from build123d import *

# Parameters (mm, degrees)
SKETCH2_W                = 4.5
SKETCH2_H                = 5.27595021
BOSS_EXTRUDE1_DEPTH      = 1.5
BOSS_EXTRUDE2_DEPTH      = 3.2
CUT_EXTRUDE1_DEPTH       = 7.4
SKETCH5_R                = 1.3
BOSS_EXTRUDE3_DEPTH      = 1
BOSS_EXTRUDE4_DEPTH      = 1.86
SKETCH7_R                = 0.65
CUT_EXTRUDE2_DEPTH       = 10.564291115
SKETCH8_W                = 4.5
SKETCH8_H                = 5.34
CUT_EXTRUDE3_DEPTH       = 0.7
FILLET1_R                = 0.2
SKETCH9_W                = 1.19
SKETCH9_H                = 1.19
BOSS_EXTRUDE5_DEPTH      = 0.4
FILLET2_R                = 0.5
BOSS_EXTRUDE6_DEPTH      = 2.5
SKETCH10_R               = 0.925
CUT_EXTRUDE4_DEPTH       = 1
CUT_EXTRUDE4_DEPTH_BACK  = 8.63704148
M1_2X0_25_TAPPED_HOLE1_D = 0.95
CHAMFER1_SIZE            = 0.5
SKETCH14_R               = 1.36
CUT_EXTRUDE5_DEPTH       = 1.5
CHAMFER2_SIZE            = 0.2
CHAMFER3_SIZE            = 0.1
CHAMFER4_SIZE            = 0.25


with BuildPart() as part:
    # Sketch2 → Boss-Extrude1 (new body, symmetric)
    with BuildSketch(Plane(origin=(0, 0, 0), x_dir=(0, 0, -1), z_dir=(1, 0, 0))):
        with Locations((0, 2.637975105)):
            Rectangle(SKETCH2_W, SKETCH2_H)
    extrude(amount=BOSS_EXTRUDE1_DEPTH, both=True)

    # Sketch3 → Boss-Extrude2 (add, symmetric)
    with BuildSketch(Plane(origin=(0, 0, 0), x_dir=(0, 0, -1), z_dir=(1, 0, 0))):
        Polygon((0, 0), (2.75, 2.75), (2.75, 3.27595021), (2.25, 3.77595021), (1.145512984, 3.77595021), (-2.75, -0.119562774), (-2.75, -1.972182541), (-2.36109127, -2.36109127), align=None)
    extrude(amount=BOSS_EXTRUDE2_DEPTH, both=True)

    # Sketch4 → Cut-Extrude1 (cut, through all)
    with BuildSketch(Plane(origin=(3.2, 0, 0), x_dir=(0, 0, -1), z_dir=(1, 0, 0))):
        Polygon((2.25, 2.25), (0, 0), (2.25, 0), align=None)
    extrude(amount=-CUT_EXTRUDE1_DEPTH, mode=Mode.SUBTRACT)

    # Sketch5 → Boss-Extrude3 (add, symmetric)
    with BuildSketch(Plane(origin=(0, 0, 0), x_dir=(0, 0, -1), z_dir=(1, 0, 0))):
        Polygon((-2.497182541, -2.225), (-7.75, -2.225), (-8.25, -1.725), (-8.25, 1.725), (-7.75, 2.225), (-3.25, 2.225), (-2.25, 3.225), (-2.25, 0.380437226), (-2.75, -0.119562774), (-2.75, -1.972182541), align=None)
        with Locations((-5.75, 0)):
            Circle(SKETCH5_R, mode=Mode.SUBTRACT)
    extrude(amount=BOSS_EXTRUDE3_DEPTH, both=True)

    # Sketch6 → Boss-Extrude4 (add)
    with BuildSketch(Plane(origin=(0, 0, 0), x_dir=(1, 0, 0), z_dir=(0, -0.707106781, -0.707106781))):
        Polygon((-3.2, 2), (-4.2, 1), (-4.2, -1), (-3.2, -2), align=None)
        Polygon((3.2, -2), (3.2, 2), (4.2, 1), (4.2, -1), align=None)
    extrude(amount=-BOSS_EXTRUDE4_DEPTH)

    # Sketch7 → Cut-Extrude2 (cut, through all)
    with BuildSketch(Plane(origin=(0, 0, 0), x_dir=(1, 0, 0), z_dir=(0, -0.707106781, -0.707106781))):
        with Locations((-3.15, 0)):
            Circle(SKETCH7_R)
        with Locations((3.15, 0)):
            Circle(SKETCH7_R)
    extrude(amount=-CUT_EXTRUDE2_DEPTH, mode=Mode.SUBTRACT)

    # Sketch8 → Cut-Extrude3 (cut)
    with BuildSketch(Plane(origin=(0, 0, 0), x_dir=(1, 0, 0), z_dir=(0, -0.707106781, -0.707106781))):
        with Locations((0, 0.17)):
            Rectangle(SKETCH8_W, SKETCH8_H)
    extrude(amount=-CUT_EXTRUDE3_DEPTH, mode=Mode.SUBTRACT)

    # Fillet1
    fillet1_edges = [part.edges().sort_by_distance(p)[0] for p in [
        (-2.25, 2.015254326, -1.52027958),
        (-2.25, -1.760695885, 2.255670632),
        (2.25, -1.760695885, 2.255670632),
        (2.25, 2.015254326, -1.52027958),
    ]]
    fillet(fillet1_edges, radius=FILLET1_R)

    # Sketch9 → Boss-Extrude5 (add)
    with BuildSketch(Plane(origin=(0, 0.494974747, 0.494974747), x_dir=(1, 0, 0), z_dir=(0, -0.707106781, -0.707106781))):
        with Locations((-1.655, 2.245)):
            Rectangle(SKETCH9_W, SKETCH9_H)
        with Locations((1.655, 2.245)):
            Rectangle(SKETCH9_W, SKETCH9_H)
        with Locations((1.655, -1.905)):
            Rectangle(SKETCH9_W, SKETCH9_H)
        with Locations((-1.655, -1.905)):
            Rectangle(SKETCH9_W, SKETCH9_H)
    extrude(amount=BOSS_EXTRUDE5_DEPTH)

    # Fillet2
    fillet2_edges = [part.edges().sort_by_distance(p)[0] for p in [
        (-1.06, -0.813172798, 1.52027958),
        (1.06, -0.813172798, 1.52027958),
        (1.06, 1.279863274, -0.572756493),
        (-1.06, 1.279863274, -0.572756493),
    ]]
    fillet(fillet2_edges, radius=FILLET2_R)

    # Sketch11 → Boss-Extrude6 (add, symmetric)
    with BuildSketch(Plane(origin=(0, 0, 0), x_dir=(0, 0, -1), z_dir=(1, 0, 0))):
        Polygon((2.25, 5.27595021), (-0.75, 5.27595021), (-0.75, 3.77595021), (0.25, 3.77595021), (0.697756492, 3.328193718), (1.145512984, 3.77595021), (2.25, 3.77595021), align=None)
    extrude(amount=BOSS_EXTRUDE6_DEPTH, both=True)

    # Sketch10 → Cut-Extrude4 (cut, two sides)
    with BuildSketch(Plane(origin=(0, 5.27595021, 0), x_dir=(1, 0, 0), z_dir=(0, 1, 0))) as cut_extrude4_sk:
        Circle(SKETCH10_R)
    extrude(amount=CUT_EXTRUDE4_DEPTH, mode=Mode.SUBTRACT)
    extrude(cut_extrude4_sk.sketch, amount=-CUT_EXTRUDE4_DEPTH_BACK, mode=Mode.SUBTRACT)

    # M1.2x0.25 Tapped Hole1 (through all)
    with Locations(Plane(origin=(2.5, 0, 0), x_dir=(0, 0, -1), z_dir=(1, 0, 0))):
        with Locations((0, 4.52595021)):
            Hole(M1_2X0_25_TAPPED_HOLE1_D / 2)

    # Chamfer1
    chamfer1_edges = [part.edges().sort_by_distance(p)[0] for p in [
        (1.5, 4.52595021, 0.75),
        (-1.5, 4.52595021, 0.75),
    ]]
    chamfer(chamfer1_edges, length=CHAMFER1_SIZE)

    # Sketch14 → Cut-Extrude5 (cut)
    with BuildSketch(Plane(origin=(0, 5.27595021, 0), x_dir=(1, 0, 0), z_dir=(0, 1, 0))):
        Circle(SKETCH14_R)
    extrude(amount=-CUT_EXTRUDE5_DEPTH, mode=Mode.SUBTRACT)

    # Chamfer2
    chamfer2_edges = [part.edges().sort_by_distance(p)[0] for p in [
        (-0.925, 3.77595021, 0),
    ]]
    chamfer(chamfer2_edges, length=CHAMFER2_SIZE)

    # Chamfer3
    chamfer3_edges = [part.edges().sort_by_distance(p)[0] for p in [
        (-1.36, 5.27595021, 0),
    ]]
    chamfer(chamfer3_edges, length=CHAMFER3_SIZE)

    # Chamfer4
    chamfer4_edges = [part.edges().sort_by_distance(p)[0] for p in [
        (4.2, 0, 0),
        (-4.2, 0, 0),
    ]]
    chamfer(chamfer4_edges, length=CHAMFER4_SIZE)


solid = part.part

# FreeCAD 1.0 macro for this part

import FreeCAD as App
import Part
import Sketcher
from FreeCAD import Vector
Q = App.Units.Quantity


def edges_at(feature, points):
    """Names of the edges that pass closest to the given points."""
    edges = feature.Shape.Edges
    near = lambda p: min(range(len(edges)), key=lambda i: edges[i].distToShape(Part.Vertex(*p))[0])
    return sorted({f"Edge{near(p) + 1}" for p in points})


def add_polygon(sketch, points):
    """Adds a closed chain of lines whose ends are joined by coincident constraints."""
    first, n = sketch.GeometryCount, len(points)
    for a, b in zip(points, points[1:] + points[:1]):
        sketch.addGeometry(Part.LineSegment(App.Vector(*a, 0), App.Vector(*b, 0)), False)
    for i in range(n):
        sketch.addConstraint(Sketcher.Constraint("Coincident", first + i, 2, first + (i + 1) % n, 1))

doc = App.newDocument("Part")
body = doc.addObject("PartDesign::Body", "Body")

# Sketch on YZ plane
sketch1 = doc.addObject("Sketcher::SketchObject", "Sketch")
body.addObject(sketch1)
sketch1.AttachmentSupport = (doc.YZ_Plane, [""])
sketch1.MapMode = "FlatFace"
add_polygon(sketch1, [(5.3, 2.2), (0, 2.2), (0, -2.2), (5.3, -2.2)])  # lines 0-3
sketch1.addConstraint(Sketcher.Constraint("Horizontal", 0))
sketch1.addConstraint(Sketcher.Constraint("Vertical", 1))
sketch1.addConstraint(Sketcher.Constraint("Horizontal", 2))
sketch1.addConstraint(Sketcher.Constraint("Vertical", 3))
sketch1.addConstraint(Sketcher.Constraint("Symmetric", 0, 2, 1, 2, -1, 1))
sketch1.addConstraint(Sketcher.Constraint("DistanceY", 1, 2, 1, 1, 4.5))
sketch1.addConstraint(Sketcher.Constraint("DistanceX", 0, 2, 0, 1, 5.27595))
pad1 = doc.addObject("PartDesign::Pad", "Pad")
body.addObject(pad1)
pad1.Profile = sketch1
pad1.Length = 3
pad1.Midplane = True

# Sketch on YZ plane
sketch2 = doc.addObject("Sketcher::SketchObject", "Sketch001")
body.addObject(sketch2)
sketch2.AttachmentSupport = (doc.YZ_Plane, [""])
sketch2.MapMode = "FlatFace"
add_polygon(sketch2, [(2.8, -2.8), (3.3, -2.8), (3.8, -2.2), (3.8, -1.1), (-0.1, 2.8), (-2, 2.8), (-2.4, 2.4)])  # lines 0-6
sketch2.addConstraint(Sketcher.Constraint("Horizontal", 0))
sketch2.addConstraint(Sketcher.Constraint("Vertical", 2))
sketch2.addConstraint(Sketcher.Constraint("Horizontal", 4))
sketch2.addConstraint(Sketcher.Constraint("Perpendicular", 1, 3))
sketch2.addConstraint(Sketcher.Constraint("Perpendicular", 3, 5))
sketch2.addConstraint(Sketcher.Constraint("Perpendicular", 5, 6))
sketch2.addConstraint(Sketcher.Constraint("Angle", 1, Q("45 deg")))
sketch2.addConstraint(Sketcher.Constraint("DistanceY", 1, 2, 3, 2, 5.0))
sketch2.addConstraint(Sketcher.Constraint("DistanceX", 0, 2, 1, 2, 0.5))
sketch2.addConstraint(Sketcher.Constraint("Distance", 5, 0.55))
sketch2.addConstraint(Sketcher.Constraint("DistanceY", 0, 2, -1, 1, 2.75))
sketch2.addConstraint(Sketcher.Constraint("DistanceX", -1, 1, 6, 2, 2.75))
sketch2.addConstraint(Sketcher.Constraint("DistanceX", 0, 1, 0, 2, 0.52595))
sketch2.addConstraint(Sketcher.Constraint("DistanceX", 4, 2, 4, 1, 1.85262))
pad2 = doc.addObject("PartDesign::Pad", "Pad001")
body.addObject(pad2)
pad2.Profile = sketch2
pad2.Length = 6.4
pad2.Midplane = True

# Sketch on YZ plane
sketch3 = doc.addObject("Sketcher::SketchObject", "Sketch002")
body.addObject(sketch3)
sketch3.AttachmentSupport = (doc.YZ_Plane, [""])
sketch3.MapMode = "FlatFace"
sketch3.AttachmentOffset = App.Placement(Vector(0, 0, 3.2), App.Rotation())
add_polygon(sketch3, [(2.2, -2.2), (0, 0), (0, -2.2)])  # lines 0-2
sketch3.addConstraint(Sketcher.Constraint("Vertical", 1))
sketch3.addConstraint(Sketcher.Constraint("Horizontal", 2))
sketch3.addConstraint(Sketcher.Constraint("Coincident", 0, 2, -1, 1))
sketch3.addConstraint(Sketcher.Constraint("Equal", 2, 1))
sketch3.addConstraint(Sketcher.Constraint("DistanceX", 2, 1, 2, 2, 2.25))
pocket1 = doc.addObject("PartDesign::Pocket", "Pocket")
body.addObject(pocket1)
pocket1.Profile = sketch3
pocket1.Type = "ThroughAll"

# Sketch on YZ plane
sketch4 = doc.addObject("Sketcher::SketchObject", "Sketch003")
body.addObject(sketch4)
sketch4.AttachmentSupport = (doc.YZ_Plane, [""])
sketch4.MapMode = "FlatFace"
add_polygon(sketch4, [(-2.23, 7.75), (-2.23, 2.5), (-1.97, 2.75), (-0.12, 2.75), (0.38, 2.25), (3.23, 2.25), (2.23, 3.25), (2.23, 7.75), (1.73, 8.25), (-1.73, 8.25)])  # lines 0-9
sketch4.addGeometry(Part.Circle(Vector(0, 5.75, 0), Vector(0, 0, 1), 1.3), False)  # 10
sketch4.addConstraint(Sketcher.Constraint("Vertical", 0))
sketch4.addConstraint(Sketcher.Constraint("Horizontal", 2))
sketch4.addConstraint(Sketcher.Constraint("Horizontal", 4))
sketch4.addConstraint(Sketcher.Constraint("Vertical", 6))
sketch4.addConstraint(Sketcher.Constraint("Horizontal", 8))
sketch4.addConstraint(Sketcher.Constraint("Symmetric", 6, 2, 9, 2, -2))
sketch4.addConstraint(Sketcher.Constraint("PointOnObject", 10, 3, -2))
sketch4.addConstraint(Sketcher.Constraint("Perpendicular", 1, 3))
sketch4.addConstraint(Sketcher.Constraint("Parallel", 3, 5))
sketch4.addConstraint(Sketcher.Constraint("Parallel", 5, 7))
sketch4.addConstraint(Sketcher.Constraint("Perpendicular", 7, 9))
sketch4.addConstraint(Sketcher.Constraint("Equal", 3, 7))
sketch4.addConstraint(Sketcher.Constraint("Equal", 7, 9))
sketch4.addConstraint(Sketcher.Constraint("Diameter", 10, 2.6))
sketch4.addConstraint(Sketcher.Constraint("DistanceY", 6, 1, 6, 2, 4.5))
sketch4.addConstraint(Sketcher.Constraint("DistanceY", 1, 2, 10, 3, 3.0))
sketch4.addConstraint(Sketcher.Constraint("DistanceX", 5, 2, 4, 2, 1.0))
sketch4.addConstraint(Sketcher.Constraint("DistanceY", 10, 3, 6, 2, 2.0))
sketch4.addConstraint(Sketcher.Constraint("DistanceX", 8, 2, 8, 1, 3.45))
sketch4.addConstraint(Sketcher.Constraint("DistanceY", -1, 1, 10, 3, 5.75))
sketch4.addConstraint(Sketcher.Constraint("DistanceX", 2, 1, 2, 2, 1.85262))
sketch4.addConstraint(Sketcher.Constraint("DistanceX", 4, 1, 4, 2, 2.844563))
pad3 = doc.addObject("PartDesign::Pad", "Pad002")
body.addObject(pad3)
pad3.Profile = sketch4
pad3.Length = 2
pad3.Midplane = True

# Sketch on an angled plane
sketch5 = doc.addObject("Sketcher::SketchObject", "Sketch004")
body.addObject(sketch5)
sketch5.Placement = App.Placement(Vector(0, 0, 0), App.Rotation(Vector(1, 0, 0), Vector(0, -0.707106781, 0.707106781), Vector(0, -0.707106781, -0.707106781), "ZXY"))
add_polygon(sketch5, [(-3.2, 2), (-4.2, 1), (-4.2, -1), (-3.2, -2)])  # lines 0-3
add_polygon(sketch5, [(3.2, 2), (3.2, -2), (4.2, -1), (4.2, 1)])  # lines 4-7
sketch5.addConstraint(Sketcher.Constraint("Vertical", 1))
sketch5.addConstraint(Sketcher.Constraint("Vertical", 3))
sketch5.addConstraint(Sketcher.Constraint("Vertical", 4))
sketch5.addConstraint(Sketcher.Constraint("Vertical", 6))
sketch5.addConstraint(Sketcher.Constraint("Symmetric", 3, 2, 4, 2, -1, 1))
sketch5.addConstraint(Sketcher.Constraint("Symmetric", 0, 2, 5, 2, -1, 1))
sketch5.addConstraint(Sketcher.Constraint("Perpendicular", 0, 2))
sketch5.addConstraint(Sketcher.Constraint("Perpendicular", 5, 7))
sketch5.addConstraint(Sketcher.Constraint("Horizontal", 2, 2, 4, 2))
sketch5.addConstraint(Sketcher.Constraint("Horizontal", 1, 2, 5, 2))
sketch5.addConstraint(Sketcher.Constraint("Horizontal", 0, 2, 6, 2))
sketch5.addConstraint(Sketcher.Constraint("DistanceY", 1, 2, 1, 1, 2.0))
sketch5.addConstraint(Sketcher.Constraint("DistanceY", 3, 1, 3, 2, 4.0))
sketch5.addConstraint(Sketcher.Constraint("DistanceX", 0, 2, -1, 1, 4.2))
pad4 = doc.addObject("PartDesign::Pad", "Pad003")
body.addObject(pad4)
pad4.Profile = sketch5
pad4.Length = 1.86
pad4.Reversed = True

# Sketch on an angled plane
sketch6 = doc.addObject("Sketcher::SketchObject", "Sketch005")
body.addObject(sketch6)
sketch6.Placement = App.Placement(Vector(0, 0, 0), App.Rotation(Vector(1, 0, 0), Vector(0, -0.707106781, 0.707106781), Vector(0, -0.707106781, -0.707106781), "ZXY"))
sketch6.addGeometry(Part.Circle(Vector(-3.1, 0, 0), Vector(0, 0, 1), 0.7), False)
sketch6.addGeometry(Part.Circle(Vector(3.1, 0, 0), Vector(0, 0, 1), 0.7), False)
sketch6.addConstraint(Sketcher.Constraint("Equal", 0, 1))
sketch6.addConstraint(Sketcher.Constraint("Symmetric", 0, 3, 1, 3, -1, 1))
sketch6.addConstraint(Sketcher.Constraint("PointOnObject", 0, 3, -1))
sketch6.addConstraint(Sketcher.Constraint("Diameter", 0, 1.3))
sketch6.addConstraint(Sketcher.Constraint("DistanceX", 0, 3, 1, 3, 6.3))
pocket2 = doc.addObject("PartDesign::Pocket", "Pocket001")
body.addObject(pocket2)
pocket2.Profile = sketch6
pocket2.Type = "ThroughAll"

# Sketch on an angled plane
sketch7 = doc.addObject("Sketcher::SketchObject", "Sketch006")
body.addObject(sketch7)
sketch7.Placement = App.Placement(Vector(0, 0, 0), App.Rotation(Vector(1, 0, 0), Vector(0, -0.707106781, 0.707106781), Vector(0, -0.707106781, -0.707106781), "ZXY"))
add_polygon(sketch7, [(-2.2, 2.8), (-2.2, -2.5), (2.2, -2.5), (2.2, 2.8)])  # lines 0-3
sketch7.addConstraint(Sketcher.Constraint("Vertical", 0))
sketch7.addConstraint(Sketcher.Constraint("Horizontal", 1))
sketch7.addConstraint(Sketcher.Constraint("Vertical", 2))
sketch7.addConstraint(Sketcher.Constraint("Horizontal", 3))
sketch7.addConstraint(Sketcher.Constraint("DistanceX", 1, 1, 1, 2, 4.5))
sketch7.addConstraint(Sketcher.Constraint("DistanceY", 0, 2, 0, 1, 5.34))
sketch7.addConstraint(Sketcher.Constraint("DistanceY", 0, 2, -1, 1, 2.5))
sketch7.addConstraint(Sketcher.Constraint("DistanceX", 0, 2, -1, 1, 2.25))
pocket3 = doc.addObject("PartDesign::Pocket", "Pocket002")
body.addObject(pocket3)
pocket3.Profile = sketch7
pocket3.Length = 0.7
doc.recompute()

fillet = doc.addObject("PartDesign::Fillet", "Fillet")
body.addObject(fillet)
fillet.Base = (pocket3, edges_at(pocket3, [
    (-2.25, 2.015, -1.52),
    (-2.25, -1.761, 2.256),
    (2.25, -1.761, 2.256),
    (2.25, 2.015, -1.52),
]))
fillet.Radius = 0.2

# Sketch on an angled plane
sketch8 = doc.addObject("Sketcher::SketchObject", "Sketch007")
body.addObject(sketch8)
sketch8.Placement = App.Placement(Vector(0, 0.494975, 0.494975), App.Rotation(Vector(1, 0, 0), Vector(0, -0.707106781, 0.707106781), Vector(0, -0.707106781, -0.707106781), "ZXY"))
add_polygon(sketch8, [(-2.2, 2.8), (-2.2, 1.6), (-1.1, 1.6), (-1.1, 2.8)])  # lines 0-3
add_polygon(sketch8, [(1.1, 2.8), (1.1, 1.6), (2.2, 1.6), (2.2, 2.8)])  # lines 4-7
add_polygon(sketch8, [(1.1, -1.3), (1.1, -2.5), (2.2, -2.5), (2.2, -1.3)])  # lines 8-11
add_polygon(sketch8, [(-2.2, -1.3), (-2.2, -2.5), (-1.1, -2.5), (-1.1, -1.3)])  # lines 12-15
sketch8.addConstraint(Sketcher.Constraint("Vertical", 0))
sketch8.addConstraint(Sketcher.Constraint("Horizontal", 1))
sketch8.addConstraint(Sketcher.Constraint("Vertical", 2))
sketch8.addConstraint(Sketcher.Constraint("Horizontal", 3))
sketch8.addConstraint(Sketcher.Constraint("Vertical", 4))
sketch8.addConstraint(Sketcher.Constraint("Horizontal", 5))
sketch8.addConstraint(Sketcher.Constraint("Vertical", 6))
sketch8.addConstraint(Sketcher.Constraint("Horizontal", 7))
sketch8.addConstraint(Sketcher.Constraint("Vertical", 8))
sketch8.addConstraint(Sketcher.Constraint("Horizontal", 9))
sketch8.addConstraint(Sketcher.Constraint("Vertical", 10))
sketch8.addConstraint(Sketcher.Constraint("Horizontal", 11))
sketch8.addConstraint(Sketcher.Constraint("Vertical", 12))
sketch8.addConstraint(Sketcher.Constraint("Horizontal", 13))
sketch8.addConstraint(Sketcher.Constraint("Vertical", 14))
sketch8.addConstraint(Sketcher.Constraint("Horizontal", 15))
sketch8.addConstraint(Sketcher.Constraint("Symmetric", 1, 2, 4, 2, -2))
sketch8.addConstraint(Sketcher.Constraint("Symmetric", 3, 2, 6, 2, -2))
sketch8.addConstraint(Sketcher.Constraint("Symmetric", 9, 2, 12, 2, -2))
sketch8.addConstraint(Sketcher.Constraint("Symmetric", 11, 2, 14, 2, -2))
sketch8.addConstraint(Sketcher.Constraint("Vertical", 7, 2, 8, 2))
sketch8.addConstraint(Sketcher.Constraint("Vertical", 6, 2, 9, 2))
sketch8.addConstraint(Sketcher.Constraint("Equal", 15, 0))
sketch8.addConstraint(Sketcher.Constraint("Equal", 6, 8))
sketch8.addConstraint(Sketcher.Constraint("DistanceX", 1, 1, 1, 2, 1.19))
sketch8.addConstraint(Sketcher.Constraint("DistanceY", 8, 2, -1, 1, 2.5))
sketch8.addConstraint(Sketcher.Constraint("DistanceX", 0, 2, 5, 2, 4.5))
sketch8.addConstraint(Sketcher.Constraint("DistanceY", -1, 1, 0, 2, 1.65))
pad5 = doc.addObject("PartDesign::Pad", "Pad004")
body.addObject(pad5)
pad5.Profile = sketch8
pad5.Length = 0.4
doc.recompute()

fillet2 = doc.addObject("PartDesign::Fillet", "Fillet001")
body.addObject(fillet2)
fillet2.Base = (pad5, edges_at(pad5, [
    (-1.06, -0.813, 1.52),
    (1.06, -0.813, 1.52),
    (1.06, 1.28, -0.573),
    (-1.06, 1.28, -0.573),
]))
fillet2.Radius = 0.5

# Sketch on YZ plane
sketch9 = doc.addObject("Sketcher::SketchObject", "Sketch008")
body.addObject(sketch9)
sketch9.AttachmentSupport = (doc.YZ_Plane, [""])
sketch9.MapMode = "FlatFace"
add_polygon(sketch9, [(5.3, -2.2), (5.3, 0.8), (3.8, 0.8), (3.8, -0.2), (3.3, -0.7), (3.8, -1.1), (3.8, -2.2)])  # lines 0-6
sketch9.addConstraint(Sketcher.Constraint("Vertical", 0))
sketch9.addConstraint(Sketcher.Constraint("Horizontal", 1))
sketch9.addConstraint(Sketcher.Constraint("Vertical", 2))
sketch9.addConstraint(Sketcher.Constraint("Vertical", 5))
sketch9.addConstraint(Sketcher.Constraint("Horizontal", 6))
sketch9.addConstraint(Sketcher.Constraint("Perpendicular", 3, 4))
sketch9.addConstraint(Sketcher.Constraint("Vertical", 2, 2, 4, 2))
sketch9.addConstraint(Sketcher.Constraint("Equal", 3, 4))
sketch9.addConstraint(Sketcher.Constraint("DistanceY", 0, 1, 0, 2, 3.0))
sketch9.addConstraint(Sketcher.Constraint("DistanceY", 2, 2, 2, 1, 1.0))
sketch9.addConstraint(Sketcher.Constraint("DistanceX", 1, 2, 1, 1, 1.5))
sketch9.addConstraint(Sketcher.Constraint("DistanceY", -1, 1, 0, 2, 0.75))
sketch9.addConstraint(Sketcher.Constraint("DistanceY", 5, 2, 5, 1, 1.104487))
sketch9.addConstraint(Sketcher.Constraint("DistanceX", -1, 1, 0, 2, 5.27595))
pad6 = doc.addObject("PartDesign::Pad", "Pad005")
body.addObject(pad6)
pad6.Profile = sketch9
pad6.Length = 5
pad6.Midplane = True

# Sketch on XZ plane
sketch10 = doc.addObject("Sketcher::SketchObject", "Sketch009")
body.addObject(sketch10)
sketch10.AttachmentSupport = (doc.XZ_Plane, [""])
sketch10.MapMode = "FlatFace"
sketch10.AttachmentOffset = App.Placement(Vector(0, 0, -5.27595), App.Rotation())
sketch10.addGeometry(Part.Circle(Vector(0, 0, 0), Vector(0, 0, 1), 0.9), False)
sketch10.addConstraint(Sketcher.Constraint("Coincident", 0, 3, -1, 1))
sketch10.addConstraint(Sketcher.Constraint("Diameter", 0, 1.85))
pocket4 = doc.addObject("PartDesign::Pocket", "Pocket003")
body.addObject(pocket4)
pocket4.Profile = sketch10
pocket4.Type = "ThroughAll"
pocket4.Midplane = True

# Sketch on YZ plane
sketch11 = doc.addObject("Sketcher::SketchObject", "Sketch010")
body.addObject(sketch11)
sketch11.AttachmentSupport = (doc.YZ_Plane, [""])
sketch11.MapMode = "FlatFace"
sketch11.AttachmentOffset = App.Placement(Vector(0, 0, 2.5), App.Rotation())
sketch11.addGeometry(Part.Circle(Vector(4.53, 0, 0), Vector(0, 0, 1), 0.47), False)
sketch11.addConstraint(Sketcher.Constraint("PointOnObject", 0, 3, -1))
sketch11.addConstraint(Sketcher.Constraint("Diameter", 0, 0.95))
sketch11.addConstraint(Sketcher.Constraint("DistanceX", -1, 1, 0, 3, 4.52595))
doc.recompute()
hole = doc.addObject("PartDesign::Hole", "Hole")
body.addObject(hole)
hole.Profile = sketch11
hole.ThreadType = "None"
hole.Diameter = 0.95
hole.DepthType = "ThroughAll"
doc.recompute()

chamfer = doc.addObject("PartDesign::Chamfer", "Chamfer")
body.addObject(chamfer)
chamfer.Base = (hole, edges_at(hole, [(1.5, 4.526, 0.75), (-1.5, 4.526, 0.75)]))
chamfer.Size = 0.5

# Sketch on XZ plane
sketch12 = doc.addObject("Sketcher::SketchObject", "Sketch011")
body.addObject(sketch12)
sketch12.AttachmentSupport = (doc.XZ_Plane, [""])
sketch12.MapMode = "FlatFace"
sketch12.AttachmentOffset = App.Placement(Vector(0, 0, -5.27595), App.Rotation())
sketch12.addGeometry(Part.Circle(Vector(0, 0, 0), Vector(0, 0, 1), 1.4), False)
sketch12.addConstraint(Sketcher.Constraint("Coincident", 0, 3, -1, 1))
sketch12.addConstraint(Sketcher.Constraint("Diameter", 0, 2.72))
pocket5 = doc.addObject("PartDesign::Pocket", "Pocket004")
body.addObject(pocket5)
pocket5.Profile = sketch12
pocket5.Length = 1.5
pocket5.Reversed = True
doc.recompute()

chamfer2 = doc.addObject("PartDesign::Chamfer", "Chamfer001")
body.addObject(chamfer2)
chamfer2.Base = (pocket5, edges_at(pocket5, [(-0.925, 3.776, 0)]))
chamfer2.Size = 0.2
doc.recompute()

chamfer3 = doc.addObject("PartDesign::Chamfer", "Chamfer002")
body.addObject(chamfer3)
chamfer3.Base = (chamfer2, edges_at(chamfer2, [(-1.36, 5.276, 0)]))
chamfer3.Size = 0.1
doc.recompute()

chamfer4 = doc.addObject("PartDesign::Chamfer", "Chamfer003")
body.addObject(chamfer4)
chamfer4.Base = (chamfer3, edges_at(chamfer3, [(4.2, 0, 0), (-4.2, 0, 0)]))
chamfer4.Size = 0.25

doc.recompute()
